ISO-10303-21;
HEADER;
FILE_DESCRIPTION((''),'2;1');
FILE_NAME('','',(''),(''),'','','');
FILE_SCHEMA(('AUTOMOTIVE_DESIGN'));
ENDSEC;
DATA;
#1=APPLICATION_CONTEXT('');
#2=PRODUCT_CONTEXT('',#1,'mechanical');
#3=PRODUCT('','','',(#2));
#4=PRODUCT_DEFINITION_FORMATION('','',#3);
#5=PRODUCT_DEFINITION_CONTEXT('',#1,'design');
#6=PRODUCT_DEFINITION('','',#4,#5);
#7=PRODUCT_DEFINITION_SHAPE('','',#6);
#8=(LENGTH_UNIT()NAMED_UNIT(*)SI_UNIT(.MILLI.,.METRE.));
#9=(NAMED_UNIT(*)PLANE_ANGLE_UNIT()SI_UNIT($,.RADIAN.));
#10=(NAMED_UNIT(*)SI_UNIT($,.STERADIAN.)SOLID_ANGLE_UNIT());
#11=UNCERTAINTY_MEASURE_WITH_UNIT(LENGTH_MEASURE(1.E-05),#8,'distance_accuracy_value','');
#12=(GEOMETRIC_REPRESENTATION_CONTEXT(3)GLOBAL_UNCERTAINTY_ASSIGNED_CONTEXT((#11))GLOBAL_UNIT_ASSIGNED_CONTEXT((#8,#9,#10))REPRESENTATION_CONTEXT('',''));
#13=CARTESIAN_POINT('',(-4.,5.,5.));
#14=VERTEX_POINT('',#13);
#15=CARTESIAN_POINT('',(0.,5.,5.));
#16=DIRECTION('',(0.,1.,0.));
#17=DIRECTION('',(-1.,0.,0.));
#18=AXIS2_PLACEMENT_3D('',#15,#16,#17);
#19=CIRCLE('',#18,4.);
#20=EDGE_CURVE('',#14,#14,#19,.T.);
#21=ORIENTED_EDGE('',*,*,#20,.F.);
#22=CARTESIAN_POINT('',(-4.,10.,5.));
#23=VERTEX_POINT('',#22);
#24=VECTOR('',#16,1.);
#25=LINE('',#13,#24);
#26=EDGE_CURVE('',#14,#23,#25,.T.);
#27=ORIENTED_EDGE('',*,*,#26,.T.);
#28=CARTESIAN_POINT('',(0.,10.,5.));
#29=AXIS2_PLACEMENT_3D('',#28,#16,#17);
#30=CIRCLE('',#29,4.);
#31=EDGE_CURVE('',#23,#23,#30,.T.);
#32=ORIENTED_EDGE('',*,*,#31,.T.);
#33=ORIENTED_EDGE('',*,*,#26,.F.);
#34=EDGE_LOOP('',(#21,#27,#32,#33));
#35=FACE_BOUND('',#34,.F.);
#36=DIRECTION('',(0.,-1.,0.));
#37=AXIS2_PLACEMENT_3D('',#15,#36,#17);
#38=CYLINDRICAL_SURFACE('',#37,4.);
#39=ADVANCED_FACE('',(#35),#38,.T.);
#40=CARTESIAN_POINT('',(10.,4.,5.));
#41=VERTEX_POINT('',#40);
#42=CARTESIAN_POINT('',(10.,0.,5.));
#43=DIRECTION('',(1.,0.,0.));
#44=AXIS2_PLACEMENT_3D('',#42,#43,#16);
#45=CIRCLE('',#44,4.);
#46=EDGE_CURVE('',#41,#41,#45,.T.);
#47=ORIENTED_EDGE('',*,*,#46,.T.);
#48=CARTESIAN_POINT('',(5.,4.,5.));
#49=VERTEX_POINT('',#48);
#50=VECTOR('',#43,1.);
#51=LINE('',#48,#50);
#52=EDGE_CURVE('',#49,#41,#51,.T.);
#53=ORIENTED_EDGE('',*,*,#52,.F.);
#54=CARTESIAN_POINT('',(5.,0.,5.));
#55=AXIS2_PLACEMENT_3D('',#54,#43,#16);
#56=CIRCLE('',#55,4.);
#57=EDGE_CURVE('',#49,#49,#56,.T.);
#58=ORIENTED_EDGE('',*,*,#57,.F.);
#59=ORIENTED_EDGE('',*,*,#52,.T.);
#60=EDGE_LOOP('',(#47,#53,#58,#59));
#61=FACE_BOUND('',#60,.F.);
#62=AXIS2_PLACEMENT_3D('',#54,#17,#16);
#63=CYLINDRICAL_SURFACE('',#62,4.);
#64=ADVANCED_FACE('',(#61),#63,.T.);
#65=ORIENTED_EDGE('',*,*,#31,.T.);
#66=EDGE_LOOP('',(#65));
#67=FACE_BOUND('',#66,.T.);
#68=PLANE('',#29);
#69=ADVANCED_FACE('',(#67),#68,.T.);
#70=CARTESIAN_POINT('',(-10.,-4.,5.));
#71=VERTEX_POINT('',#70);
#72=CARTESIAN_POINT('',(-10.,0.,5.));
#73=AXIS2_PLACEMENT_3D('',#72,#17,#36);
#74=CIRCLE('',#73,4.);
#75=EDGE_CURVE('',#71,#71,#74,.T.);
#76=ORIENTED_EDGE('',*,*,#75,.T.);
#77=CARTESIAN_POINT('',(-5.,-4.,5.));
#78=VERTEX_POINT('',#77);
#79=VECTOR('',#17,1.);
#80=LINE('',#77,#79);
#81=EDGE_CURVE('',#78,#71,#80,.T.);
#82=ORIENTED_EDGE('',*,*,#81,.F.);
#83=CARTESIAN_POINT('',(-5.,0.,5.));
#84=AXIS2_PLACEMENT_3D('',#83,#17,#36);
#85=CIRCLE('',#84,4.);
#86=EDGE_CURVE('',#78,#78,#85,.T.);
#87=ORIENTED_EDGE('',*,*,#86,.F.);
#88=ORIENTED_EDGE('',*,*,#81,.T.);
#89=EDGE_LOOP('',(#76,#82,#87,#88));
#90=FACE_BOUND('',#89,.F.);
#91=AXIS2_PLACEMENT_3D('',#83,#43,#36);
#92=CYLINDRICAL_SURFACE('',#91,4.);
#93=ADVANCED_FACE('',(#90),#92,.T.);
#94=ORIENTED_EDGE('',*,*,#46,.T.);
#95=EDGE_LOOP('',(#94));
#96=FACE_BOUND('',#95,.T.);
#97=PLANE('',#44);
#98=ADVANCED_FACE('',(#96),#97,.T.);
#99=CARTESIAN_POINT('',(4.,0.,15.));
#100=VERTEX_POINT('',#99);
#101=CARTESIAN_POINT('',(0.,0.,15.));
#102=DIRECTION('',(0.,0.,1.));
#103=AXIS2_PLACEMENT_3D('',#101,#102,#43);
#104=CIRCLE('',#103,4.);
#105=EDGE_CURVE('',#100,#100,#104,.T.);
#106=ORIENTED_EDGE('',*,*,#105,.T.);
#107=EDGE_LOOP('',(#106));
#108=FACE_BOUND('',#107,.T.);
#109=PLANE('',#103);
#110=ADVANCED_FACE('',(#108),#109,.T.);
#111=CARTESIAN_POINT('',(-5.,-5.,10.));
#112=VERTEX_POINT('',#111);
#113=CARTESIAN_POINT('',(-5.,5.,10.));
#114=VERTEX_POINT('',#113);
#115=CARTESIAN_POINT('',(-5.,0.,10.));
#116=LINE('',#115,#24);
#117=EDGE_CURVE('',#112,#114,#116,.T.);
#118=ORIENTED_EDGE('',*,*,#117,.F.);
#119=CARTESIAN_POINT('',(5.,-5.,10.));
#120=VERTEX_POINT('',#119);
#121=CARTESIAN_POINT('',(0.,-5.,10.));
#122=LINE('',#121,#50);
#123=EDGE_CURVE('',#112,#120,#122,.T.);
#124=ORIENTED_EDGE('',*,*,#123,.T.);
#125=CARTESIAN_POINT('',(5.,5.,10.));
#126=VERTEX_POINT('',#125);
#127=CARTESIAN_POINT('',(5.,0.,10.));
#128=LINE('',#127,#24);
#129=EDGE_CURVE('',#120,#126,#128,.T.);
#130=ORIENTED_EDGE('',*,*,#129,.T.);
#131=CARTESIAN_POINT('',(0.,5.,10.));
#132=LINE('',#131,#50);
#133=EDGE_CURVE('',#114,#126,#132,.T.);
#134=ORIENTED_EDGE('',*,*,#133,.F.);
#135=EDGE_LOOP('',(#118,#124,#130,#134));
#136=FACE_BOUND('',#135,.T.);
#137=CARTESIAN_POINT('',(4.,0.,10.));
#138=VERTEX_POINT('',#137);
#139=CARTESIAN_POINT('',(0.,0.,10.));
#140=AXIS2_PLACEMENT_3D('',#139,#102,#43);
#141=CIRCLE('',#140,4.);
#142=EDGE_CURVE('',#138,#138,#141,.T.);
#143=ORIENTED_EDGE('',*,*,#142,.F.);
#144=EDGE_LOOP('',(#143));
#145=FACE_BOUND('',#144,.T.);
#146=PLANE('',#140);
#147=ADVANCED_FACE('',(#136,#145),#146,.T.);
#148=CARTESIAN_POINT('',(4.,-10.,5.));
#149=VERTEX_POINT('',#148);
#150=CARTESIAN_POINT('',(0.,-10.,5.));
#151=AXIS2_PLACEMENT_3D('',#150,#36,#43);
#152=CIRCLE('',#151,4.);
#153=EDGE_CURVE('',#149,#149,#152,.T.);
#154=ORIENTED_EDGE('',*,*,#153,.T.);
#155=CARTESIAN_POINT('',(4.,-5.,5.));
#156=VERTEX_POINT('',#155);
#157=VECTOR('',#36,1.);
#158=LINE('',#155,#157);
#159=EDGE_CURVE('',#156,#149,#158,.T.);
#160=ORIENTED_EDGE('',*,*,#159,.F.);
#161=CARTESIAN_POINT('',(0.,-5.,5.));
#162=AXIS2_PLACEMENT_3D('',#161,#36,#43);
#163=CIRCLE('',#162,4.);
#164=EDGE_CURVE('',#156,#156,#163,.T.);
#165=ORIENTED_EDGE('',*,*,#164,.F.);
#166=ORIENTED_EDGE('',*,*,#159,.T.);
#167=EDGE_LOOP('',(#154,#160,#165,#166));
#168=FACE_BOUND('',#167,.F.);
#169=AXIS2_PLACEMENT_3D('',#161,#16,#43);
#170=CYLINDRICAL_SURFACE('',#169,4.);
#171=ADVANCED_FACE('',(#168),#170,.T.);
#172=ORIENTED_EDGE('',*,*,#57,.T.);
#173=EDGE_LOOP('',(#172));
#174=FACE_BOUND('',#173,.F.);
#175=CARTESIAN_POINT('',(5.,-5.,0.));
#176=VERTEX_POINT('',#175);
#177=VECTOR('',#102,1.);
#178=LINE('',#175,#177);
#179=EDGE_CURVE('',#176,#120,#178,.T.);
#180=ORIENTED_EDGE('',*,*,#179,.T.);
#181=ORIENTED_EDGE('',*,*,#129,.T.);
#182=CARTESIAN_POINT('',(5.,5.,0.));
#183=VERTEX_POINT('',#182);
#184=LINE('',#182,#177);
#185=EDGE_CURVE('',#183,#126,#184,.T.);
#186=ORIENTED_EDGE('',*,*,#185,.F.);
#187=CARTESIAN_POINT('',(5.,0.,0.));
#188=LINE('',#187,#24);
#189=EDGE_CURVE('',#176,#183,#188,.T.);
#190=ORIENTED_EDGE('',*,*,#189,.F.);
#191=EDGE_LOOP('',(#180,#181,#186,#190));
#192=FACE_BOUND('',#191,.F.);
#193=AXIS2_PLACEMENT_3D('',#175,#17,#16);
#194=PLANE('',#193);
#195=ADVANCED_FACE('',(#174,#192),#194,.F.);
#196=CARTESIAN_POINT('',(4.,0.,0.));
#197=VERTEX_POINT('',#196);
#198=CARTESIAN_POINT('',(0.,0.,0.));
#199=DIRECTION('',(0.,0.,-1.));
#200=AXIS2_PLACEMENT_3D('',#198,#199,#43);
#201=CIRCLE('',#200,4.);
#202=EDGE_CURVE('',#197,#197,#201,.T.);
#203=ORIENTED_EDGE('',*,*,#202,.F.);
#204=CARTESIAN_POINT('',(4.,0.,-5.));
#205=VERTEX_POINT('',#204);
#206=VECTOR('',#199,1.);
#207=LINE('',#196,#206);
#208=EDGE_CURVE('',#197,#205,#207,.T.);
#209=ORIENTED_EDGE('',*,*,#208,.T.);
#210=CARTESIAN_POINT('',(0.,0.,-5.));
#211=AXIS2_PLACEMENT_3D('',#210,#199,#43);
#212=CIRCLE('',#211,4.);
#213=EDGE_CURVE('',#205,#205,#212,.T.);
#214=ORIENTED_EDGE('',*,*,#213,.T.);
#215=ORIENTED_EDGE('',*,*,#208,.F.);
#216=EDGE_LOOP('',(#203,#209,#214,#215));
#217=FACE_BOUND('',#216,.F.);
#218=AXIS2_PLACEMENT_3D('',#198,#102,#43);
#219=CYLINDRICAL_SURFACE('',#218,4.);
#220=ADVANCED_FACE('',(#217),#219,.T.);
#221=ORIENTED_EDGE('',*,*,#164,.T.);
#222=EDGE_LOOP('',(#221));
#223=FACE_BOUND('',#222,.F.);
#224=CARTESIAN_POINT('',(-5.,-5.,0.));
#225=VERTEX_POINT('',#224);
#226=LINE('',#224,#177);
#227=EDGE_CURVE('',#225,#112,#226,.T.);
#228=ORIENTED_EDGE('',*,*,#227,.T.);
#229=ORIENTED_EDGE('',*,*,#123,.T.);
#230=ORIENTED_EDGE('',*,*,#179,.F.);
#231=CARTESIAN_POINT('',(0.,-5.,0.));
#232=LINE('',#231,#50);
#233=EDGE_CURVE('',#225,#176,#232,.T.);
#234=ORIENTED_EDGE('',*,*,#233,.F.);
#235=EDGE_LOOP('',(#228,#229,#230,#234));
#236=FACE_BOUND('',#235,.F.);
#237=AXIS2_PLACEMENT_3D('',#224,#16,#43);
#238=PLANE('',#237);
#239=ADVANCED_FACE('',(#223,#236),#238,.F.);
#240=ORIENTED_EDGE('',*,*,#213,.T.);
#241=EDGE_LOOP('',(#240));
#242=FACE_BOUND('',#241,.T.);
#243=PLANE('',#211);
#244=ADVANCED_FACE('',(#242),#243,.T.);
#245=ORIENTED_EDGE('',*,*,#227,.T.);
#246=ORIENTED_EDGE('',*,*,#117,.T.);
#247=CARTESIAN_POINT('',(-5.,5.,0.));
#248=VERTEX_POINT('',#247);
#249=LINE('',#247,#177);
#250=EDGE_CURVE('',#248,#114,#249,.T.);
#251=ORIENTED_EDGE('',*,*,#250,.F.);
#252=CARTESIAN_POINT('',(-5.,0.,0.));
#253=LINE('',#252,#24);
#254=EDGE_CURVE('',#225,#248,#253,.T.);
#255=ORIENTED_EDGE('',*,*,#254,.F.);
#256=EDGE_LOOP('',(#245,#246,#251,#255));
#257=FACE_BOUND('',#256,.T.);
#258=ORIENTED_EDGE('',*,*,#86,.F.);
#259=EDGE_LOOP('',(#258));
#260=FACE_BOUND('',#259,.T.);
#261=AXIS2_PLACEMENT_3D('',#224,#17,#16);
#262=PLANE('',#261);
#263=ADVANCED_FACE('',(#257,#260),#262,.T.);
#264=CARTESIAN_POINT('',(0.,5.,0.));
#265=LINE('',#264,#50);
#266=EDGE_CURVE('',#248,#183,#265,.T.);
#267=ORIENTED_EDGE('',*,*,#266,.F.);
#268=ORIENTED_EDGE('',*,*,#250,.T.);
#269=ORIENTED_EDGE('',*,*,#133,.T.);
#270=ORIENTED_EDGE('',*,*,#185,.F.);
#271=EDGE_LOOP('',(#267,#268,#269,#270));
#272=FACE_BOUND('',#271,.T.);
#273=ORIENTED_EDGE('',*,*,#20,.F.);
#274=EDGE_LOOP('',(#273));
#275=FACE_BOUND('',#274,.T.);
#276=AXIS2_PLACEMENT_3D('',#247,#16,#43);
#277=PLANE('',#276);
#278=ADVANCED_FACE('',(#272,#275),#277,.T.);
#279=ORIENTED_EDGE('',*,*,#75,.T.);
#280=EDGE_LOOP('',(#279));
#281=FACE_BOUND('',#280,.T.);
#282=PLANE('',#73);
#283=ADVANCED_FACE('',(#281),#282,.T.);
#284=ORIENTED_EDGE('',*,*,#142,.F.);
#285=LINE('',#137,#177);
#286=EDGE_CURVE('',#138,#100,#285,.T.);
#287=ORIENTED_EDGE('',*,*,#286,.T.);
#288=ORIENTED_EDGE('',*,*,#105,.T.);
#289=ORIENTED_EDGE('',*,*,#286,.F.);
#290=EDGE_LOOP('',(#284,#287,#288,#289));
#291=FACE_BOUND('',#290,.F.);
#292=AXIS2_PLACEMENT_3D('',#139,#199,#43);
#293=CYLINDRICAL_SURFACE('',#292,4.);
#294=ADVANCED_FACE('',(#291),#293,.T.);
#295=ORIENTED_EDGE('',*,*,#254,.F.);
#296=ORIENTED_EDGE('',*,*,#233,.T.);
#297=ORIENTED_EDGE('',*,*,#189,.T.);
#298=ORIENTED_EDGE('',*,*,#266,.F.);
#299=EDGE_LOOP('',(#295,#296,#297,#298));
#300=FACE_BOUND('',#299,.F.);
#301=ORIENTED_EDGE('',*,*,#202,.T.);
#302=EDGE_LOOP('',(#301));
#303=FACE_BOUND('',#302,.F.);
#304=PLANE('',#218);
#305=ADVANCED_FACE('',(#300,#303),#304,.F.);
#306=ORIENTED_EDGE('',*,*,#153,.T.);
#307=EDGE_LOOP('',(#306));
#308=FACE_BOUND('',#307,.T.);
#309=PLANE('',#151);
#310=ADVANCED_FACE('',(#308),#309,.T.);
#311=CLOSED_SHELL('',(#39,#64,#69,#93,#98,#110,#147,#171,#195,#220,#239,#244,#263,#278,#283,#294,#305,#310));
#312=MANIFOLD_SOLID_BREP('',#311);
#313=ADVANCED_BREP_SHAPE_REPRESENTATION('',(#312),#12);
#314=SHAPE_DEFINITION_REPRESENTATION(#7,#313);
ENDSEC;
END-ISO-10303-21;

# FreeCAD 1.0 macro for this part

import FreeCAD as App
import Part
import Sketcher
from FreeCAD import Vector

doc = App.newDocument("Part")
body = doc.addObject("PartDesign::Body", "Body")

sketch1 = body.newObject("Sketcher::SketchObject", "Sketch")
sketch1.AttachmentSupport = (doc.getObject("XY_Plane"), [""])
sketch1.MapMode = "FlatFace"
sketch1.addGeometry(Part.LineSegment(Vector(-5, 5, 0), Vector(-5, -5, 0)), False)
sketch1.addGeometry(Part.LineSegment(Vector(-5, -5, 0), Vector(5, -5, 0)), False)
sketch1.addGeometry(Part.LineSegment(Vector(5, -5, 0), Vector(5, 5, 0)), False)
sketch1.addGeometry(Part.LineSegment(Vector(5, 5, 0), Vector(-5, 5, 0)), False)
sketch1.addConstraint(Sketcher.Constraint("Coincident", 0, 2, 1, 1))
sketch1.addConstraint(Sketcher.Constraint("Coincident", 1, 2, 2, 1))
sketch1.addConstraint(Sketcher.Constraint("Coincident", 2, 2, 3, 1))
sketch1.addConstraint(Sketcher.Constraint("Coincident", 3, 2, 0, 1))
sketch1.addConstraint(Sketcher.Constraint("Vertical", 0))
sketch1.addConstraint(Sketcher.Constraint("Horizontal", 1))
sketch1.addConstraint(Sketcher.Constraint("Vertical", 2))
sketch1.addConstraint(Sketcher.Constraint("Horizontal", 3))
sketch1.addConstraint(Sketcher.Constraint("Symmetric", 0, 2, 2, 2, -1, 1))
sketch1.addConstraint(Sketcher.Constraint("Equal", 3, 0))
sketch1.addConstraint(Sketcher.Constraint("DistanceX", 1, 1, 1, 2, 10.0))
pad1 = body.newObject("PartDesign::Pad", "Pad")
pad1.Profile = sketch1
pad1.Length = 10

sketch2 = body.newObject("Sketcher::SketchObject", "Sketch001")
sketch2.AttachmentSupport = (doc.getObject("YZ_Plane"), [""])
sketch2.MapMode = "FlatFace"
sketch2.AttachmentOffset = App.Placement(Vector(0, 0, 5), App.Rotation())
sketch2.addGeometry(Part.Circle(Vector(0, 5, 0), Vector(0, 0, 1), 4), False)
sketch2.addConstraint(Sketcher.Constraint("PointOnObject", 0, 3, -2))
sketch2.addConstraint(Sketcher.Constraint("Diameter", 0, 8.0))
sketch2.addConstraint(Sketcher.Constraint("DistanceY", -1, 1, 0, 3, 5.0))
pad2 = body.newObject("PartDesign::Pad", "Pad001")
pad2.Profile = sketch2
pad2.Length = 5

sketch3 = body.newObject("Sketcher::SketchObject", "Sketch002")
sketch3.AttachmentSupport = (doc.getObject("XY_Plane"), [""])
sketch3.MapMode = "FlatFace"
sketch3.addGeometry(Part.Circle(Vector(0, 0, 0), Vector(0, 0, 1), 4), False)
sketch3.addConstraint(Sketcher.Constraint("Coincident", 0, 3, -1, 1))
sketch3.addConstraint(Sketcher.Constraint("Diameter", 0, 8.0))
pad3 = body.newObject("PartDesign::Pad", "Pad002")
pad3.Profile = sketch3
pad3.Length = 5
pad3.Reversed = True

sketch4 = body.newObject("Sketcher::SketchObject", "Sketch003")
sketch4.AttachmentSupport = (doc.getObject("YZ_Plane"), [""])
sketch4.MapMode = "FlatFace"
sketch4.AttachmentOffset = App.Placement(Vector(0, 0, -5), App.Rotation())
sketch4.addGeometry(Part.Circle(Vector(0, 5, 0), Vector(0, 0, 1), 4), False)
sketch4.addConstraint(Sketcher.Constraint("PointOnObject", 0, 3, -2))
sketch4.addConstraint(Sketcher.Constraint("Diameter", 0, 8.0))
sketch4.addConstraint(Sketcher.Constraint("DistanceY", -1, 1, 0, 3, 5.0))
pad4 = body.newObject("PartDesign::Pad", "Pad003")
pad4.Profile = sketch4
pad4.Length = 5
pad4.Reversed = True

sketch5 = body.newObject("Sketcher::SketchObject", "Sketch004")
sketch5.AttachmentSupport = (doc.getObject("XY_Plane"), [""])
sketch5.MapMode = "FlatFace"
sketch5.AttachmentOffset = App.Placement(Vector(0, 0, 10), App.Rotation())
sketch5.addGeometry(Part.Circle(Vector(0, 0, 0), Vector(0, 0, 1), 4), False)
sketch5.addConstraint(Sketcher.Constraint("Coincident", 0, 3, -1, 1))
sketch5.addConstraint(Sketcher.Constraint("Diameter", 0, 8.0))
pad5 = body.newObject("PartDesign::Pad", "Pad004")
pad5.Profile = sketch5
pad5.Length = 5

sketch6 = body.newObject("Sketcher::SketchObject", "Sketch005")
sketch6.AttachmentSupport = (doc.getObject("XZ_Plane"), [""])
sketch6.MapMode = "FlatFace"
sketch6.AttachmentOffset = App.Placement(Vector(0, 0, -5), App.Rotation())
sketch6.addGeometry(Part.Circle(Vector(0, 5, 0), Vector(0, 0, 1), 4), False)
sketch6.addConstraint(Sketcher.Constraint("PointOnObject", 0, 3, -2))
sketch6.addConstraint(Sketcher.Constraint("Diameter", 0, 8.0))
sketch6.addConstraint(Sketcher.Constraint("DistanceY", -1, 1, 0, 3, 5.0))
pad6 = body.newObject("PartDesign::Pad", "Pad005")
pad6.Profile = sketch6
pad6.Length = 5
pad6.Reversed = True

sketch7 = body.newObject("Sketcher::SketchObject", "Sketch006")
sketch7.AttachmentSupport = (doc.getObject("XZ_Plane"), [""])
sketch7.MapMode = "FlatFace"
sketch7.AttachmentOffset = App.Placement(Vector(0, 0, 5), App.Rotation())
sketch7.addGeometry(Part.Circle(Vector(0, 5, 0), Vector(0, 0, 1), 4), False)
sketch7.addConstraint(Sketcher.Constraint("PointOnObject", 0, 3, -2))
sketch7.addConstraint(Sketcher.Constraint("Diameter", 0, 8.0))
sketch7.addConstraint(Sketcher.Constraint("DistanceY", -1, 1, 0, 3, 5.0))
pad7 = body.newObject("PartDesign::Pad", "Pad006")
pad7.Profile = sketch7
pad7.Length = 5

doc.recompute()
